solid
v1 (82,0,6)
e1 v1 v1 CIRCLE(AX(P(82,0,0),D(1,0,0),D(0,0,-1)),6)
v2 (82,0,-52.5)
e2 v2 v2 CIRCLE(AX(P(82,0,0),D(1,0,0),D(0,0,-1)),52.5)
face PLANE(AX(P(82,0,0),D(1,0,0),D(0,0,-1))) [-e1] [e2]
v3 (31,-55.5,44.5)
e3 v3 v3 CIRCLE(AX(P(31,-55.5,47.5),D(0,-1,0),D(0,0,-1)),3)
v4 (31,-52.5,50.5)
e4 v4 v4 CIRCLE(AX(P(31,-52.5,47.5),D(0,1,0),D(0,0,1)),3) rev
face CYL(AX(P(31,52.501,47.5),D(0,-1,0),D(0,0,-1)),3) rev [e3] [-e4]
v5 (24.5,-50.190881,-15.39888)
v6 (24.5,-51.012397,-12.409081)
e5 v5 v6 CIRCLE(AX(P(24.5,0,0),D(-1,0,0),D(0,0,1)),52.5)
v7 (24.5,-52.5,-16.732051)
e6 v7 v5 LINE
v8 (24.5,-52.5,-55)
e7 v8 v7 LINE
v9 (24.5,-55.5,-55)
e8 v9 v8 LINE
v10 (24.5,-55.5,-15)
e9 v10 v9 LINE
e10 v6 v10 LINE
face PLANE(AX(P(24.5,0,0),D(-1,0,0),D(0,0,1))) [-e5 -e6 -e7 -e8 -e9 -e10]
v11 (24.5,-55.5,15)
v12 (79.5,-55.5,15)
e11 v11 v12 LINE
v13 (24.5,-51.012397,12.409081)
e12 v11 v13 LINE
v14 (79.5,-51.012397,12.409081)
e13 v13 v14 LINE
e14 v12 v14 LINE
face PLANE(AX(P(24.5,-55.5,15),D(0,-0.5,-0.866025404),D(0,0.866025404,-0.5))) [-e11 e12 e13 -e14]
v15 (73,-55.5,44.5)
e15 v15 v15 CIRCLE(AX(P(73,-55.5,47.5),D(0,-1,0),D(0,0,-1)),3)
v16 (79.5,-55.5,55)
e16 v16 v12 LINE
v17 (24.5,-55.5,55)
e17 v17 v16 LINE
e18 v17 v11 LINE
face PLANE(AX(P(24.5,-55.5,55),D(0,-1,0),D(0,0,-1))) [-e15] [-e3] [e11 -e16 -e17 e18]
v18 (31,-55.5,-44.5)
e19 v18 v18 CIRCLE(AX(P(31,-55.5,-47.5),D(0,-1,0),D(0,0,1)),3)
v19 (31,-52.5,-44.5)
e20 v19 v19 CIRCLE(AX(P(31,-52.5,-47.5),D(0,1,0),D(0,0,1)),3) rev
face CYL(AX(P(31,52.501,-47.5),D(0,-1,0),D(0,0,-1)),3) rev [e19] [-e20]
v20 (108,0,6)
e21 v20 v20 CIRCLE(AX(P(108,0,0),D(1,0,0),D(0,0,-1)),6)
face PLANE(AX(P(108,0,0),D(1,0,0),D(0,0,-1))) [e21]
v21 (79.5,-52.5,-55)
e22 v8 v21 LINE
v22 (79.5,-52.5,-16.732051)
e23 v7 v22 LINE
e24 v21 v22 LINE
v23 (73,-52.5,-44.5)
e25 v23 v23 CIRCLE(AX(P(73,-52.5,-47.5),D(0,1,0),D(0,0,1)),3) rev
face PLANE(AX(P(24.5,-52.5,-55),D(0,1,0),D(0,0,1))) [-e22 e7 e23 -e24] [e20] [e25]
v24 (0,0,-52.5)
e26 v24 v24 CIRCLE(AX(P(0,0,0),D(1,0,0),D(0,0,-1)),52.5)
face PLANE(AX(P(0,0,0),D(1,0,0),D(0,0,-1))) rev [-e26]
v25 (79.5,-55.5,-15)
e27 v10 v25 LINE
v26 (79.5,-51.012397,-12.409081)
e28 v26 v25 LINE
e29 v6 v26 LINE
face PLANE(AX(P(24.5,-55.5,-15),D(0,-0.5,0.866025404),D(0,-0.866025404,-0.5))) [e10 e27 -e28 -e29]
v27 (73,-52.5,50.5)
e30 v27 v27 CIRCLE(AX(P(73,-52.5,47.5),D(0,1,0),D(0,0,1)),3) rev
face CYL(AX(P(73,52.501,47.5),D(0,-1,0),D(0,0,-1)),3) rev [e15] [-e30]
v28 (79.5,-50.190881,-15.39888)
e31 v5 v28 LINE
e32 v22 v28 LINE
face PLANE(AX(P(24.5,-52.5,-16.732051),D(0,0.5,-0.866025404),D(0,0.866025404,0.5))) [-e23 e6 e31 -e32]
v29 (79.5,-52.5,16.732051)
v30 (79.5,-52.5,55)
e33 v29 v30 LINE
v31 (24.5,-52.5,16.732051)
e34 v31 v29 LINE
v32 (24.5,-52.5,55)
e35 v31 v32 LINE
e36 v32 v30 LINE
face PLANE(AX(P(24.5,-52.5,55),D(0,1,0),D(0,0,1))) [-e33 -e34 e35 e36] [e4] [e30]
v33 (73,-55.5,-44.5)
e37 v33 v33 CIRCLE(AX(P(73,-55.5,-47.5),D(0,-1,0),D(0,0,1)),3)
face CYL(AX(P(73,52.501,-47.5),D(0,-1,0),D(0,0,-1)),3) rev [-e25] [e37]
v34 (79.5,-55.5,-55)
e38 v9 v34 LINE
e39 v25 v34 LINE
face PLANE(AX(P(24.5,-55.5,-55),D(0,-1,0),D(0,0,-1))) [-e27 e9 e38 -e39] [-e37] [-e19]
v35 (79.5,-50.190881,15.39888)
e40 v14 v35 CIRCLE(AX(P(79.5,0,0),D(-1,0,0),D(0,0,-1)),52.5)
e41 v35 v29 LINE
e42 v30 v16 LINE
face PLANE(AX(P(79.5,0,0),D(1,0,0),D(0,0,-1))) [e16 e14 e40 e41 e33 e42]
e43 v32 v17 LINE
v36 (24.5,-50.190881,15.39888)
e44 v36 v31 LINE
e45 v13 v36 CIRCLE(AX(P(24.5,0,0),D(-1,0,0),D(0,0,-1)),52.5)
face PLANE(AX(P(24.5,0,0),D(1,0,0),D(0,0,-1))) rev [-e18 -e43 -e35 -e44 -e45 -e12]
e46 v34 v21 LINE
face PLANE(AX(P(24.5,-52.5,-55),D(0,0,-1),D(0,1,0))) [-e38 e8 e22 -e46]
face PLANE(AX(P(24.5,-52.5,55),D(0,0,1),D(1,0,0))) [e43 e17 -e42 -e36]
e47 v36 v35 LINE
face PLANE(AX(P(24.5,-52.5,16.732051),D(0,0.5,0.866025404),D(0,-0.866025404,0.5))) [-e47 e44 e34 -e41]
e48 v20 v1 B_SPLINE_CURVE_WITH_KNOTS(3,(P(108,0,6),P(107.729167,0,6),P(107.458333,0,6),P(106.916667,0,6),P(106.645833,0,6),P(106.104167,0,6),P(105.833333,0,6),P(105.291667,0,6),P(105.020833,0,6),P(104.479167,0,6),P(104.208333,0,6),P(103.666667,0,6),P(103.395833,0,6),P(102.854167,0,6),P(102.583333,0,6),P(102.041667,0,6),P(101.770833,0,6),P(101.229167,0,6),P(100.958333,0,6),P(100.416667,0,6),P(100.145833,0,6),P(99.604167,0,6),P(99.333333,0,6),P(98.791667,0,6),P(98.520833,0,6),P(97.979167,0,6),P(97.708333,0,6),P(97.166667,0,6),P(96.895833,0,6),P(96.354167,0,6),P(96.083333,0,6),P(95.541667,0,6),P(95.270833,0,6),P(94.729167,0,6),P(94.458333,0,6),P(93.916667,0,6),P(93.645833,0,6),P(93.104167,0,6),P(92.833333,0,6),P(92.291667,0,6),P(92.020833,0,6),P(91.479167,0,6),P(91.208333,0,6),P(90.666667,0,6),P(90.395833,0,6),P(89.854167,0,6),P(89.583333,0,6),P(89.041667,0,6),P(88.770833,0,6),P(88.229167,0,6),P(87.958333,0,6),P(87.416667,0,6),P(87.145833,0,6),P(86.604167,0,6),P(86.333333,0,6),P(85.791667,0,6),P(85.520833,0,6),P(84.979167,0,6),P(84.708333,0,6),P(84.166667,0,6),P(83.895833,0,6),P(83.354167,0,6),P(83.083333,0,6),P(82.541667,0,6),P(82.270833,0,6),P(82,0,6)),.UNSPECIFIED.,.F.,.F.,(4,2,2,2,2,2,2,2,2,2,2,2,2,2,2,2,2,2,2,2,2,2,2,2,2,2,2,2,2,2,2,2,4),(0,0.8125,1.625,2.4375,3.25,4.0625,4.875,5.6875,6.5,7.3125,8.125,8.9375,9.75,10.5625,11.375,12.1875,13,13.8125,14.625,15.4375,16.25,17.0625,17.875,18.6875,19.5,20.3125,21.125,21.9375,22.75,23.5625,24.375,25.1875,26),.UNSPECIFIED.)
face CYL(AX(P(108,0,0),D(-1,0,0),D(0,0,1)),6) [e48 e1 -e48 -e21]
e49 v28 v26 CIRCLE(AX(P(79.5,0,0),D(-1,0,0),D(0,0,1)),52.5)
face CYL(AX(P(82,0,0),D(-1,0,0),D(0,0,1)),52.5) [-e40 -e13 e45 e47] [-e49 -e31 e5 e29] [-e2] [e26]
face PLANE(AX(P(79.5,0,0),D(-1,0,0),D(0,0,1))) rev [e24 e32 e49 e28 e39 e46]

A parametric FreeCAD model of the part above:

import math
import FreeCAD as App
import Part
import Sketcher
from FreeCAD import Vector
Q = App.Units.Quantity

doc = App.newDocument("Part")
body = doc.addObject("PartDesign::Body", "Body")

# Sketch on YZ plane
sketch1 = body.newObject("Sketcher::SketchObject", "Sketch")
sketch1.AttachmentSupport = (doc.getObject("YZ_Plane"), [""])
sketch1.MapMode = "FlatFace"
sketch1.addGeometry(Part.Circle(Vector(0, 0, 0), Vector(0, 0, 1), 52), False)
sketch1.addConstraint(Sketcher.Constraint("Coincident", 0, 3, -1, 1))
sketch1.addConstraint(Sketcher.Constraint("Diameter", 0, 105.0))
pad1 = body.newObject("PartDesign::Pad", "Pad")
pad1.Profile = sketch1
pad1.Length = 82

# Sketch on YZ plane
sketch2 = body.newObject("Sketcher::SketchObject", "Sketch001")
sketch2.AttachmentSupport = (doc.getObject("YZ_Plane"), [""])
sketch2.MapMode = "FlatFace"
sketch2.AttachmentOffset = App.Placement(Vector(0, 0, 82), App.Rotation())
sketch2.addGeometry(Part.Circle(Vector(0, 0, 0), Vector(0, 0, 1), 6), False)
sketch2.addConstraint(Sketcher.Constraint("Coincident", 0, 3, -1, 1))
sketch2.addConstraint(Sketcher.Constraint("Diameter", 0, 12.0))
pad2 = body.newObject("PartDesign::Pad", "Pad001")
pad2.Profile = sketch2
pad2.Length = 26

# Sketch on YZ plane
sketch3 = body.newObject("Sketcher::SketchObject", "Sketch002")
sketch3.AttachmentSupport = (doc.getObject("YZ_Plane"), [""])
sketch3.MapMode = "FlatFace"
sketch3.AttachmentOffset = App.Placement(Vector(0, 0, 24.5), App.Rotation())
sketch3.addGeometry(Part.LineSegment(Vector(-52.5, 16.7, 0), Vector(-52.5, 55, 0)), False)
sketch3.addGeometry(Part.LineSegment(Vector(-52.5, 55, 0), Vector(-55.5, 55, 0)), False)
sketch3.addGeometry(Part.LineSegment(Vector(-55.5, 55, 0), Vector(-55.5, 15, 0)), False)
sketch3.addGeometry(Part.LineSegment(Vector(-55.5, 15, 0), Vector(-51, 12.4, 0)), False)
sketch3.addGeometry(Part.ArcOfCircle(Part.Circle(Vector(0, 0, 0), Vector(0, 0, 1), 52.5), math.radians(162.94), math.radians(166.33)), False)
sketch3.addGeometry(Part.LineSegment(Vector(-50.2, 15.4, 0), Vector(-52.5, 16.7, 0)), False)
sketch3.addGeometry(Part.LineSegment(Vector(-52.5, -16.7, 0), Vector(-50.2, -15.4, 0)), False)
sketch3.addGeometry(Part.ArcOfCircle(Part.Circle(Vector(0, 0, 0), Vector(0, 0, 1), 52.5), math.radians(-166.33), math.radians(-162.94)), False)
sketch3.addGeometry(Part.LineSegment(Vector(-51, -12.4, 0), Vector(-55.5, -15, 0)), False)
sketch3.addGeometry(Part.LineSegment(Vector(-55.5, -15, 0), Vector(-55.5, -55, 0)), False)
sketch3.addGeometry(Part.LineSegment(Vector(-55.5, -55, 0), Vector(-52.5, -55, 0)), False)
sketch3.addGeometry(Part.LineSegment(Vector(-52.5, -55, 0), Vector(-52.5, -16.7, 0)), False)
sketch3.addConstraint(Sketcher.Constraint("Coincident", 0, 2, 1, 1))
sketch3.addConstraint(Sketcher.Constraint("Coincident", 1, 2, 2, 1))
sketch3.addConstraint(Sketcher.Constraint("Coincident", 2, 2, 3, 1))
sketch3.addConstraint(Sketcher.Constraint("Coincident", 3, 2, 4, 2))
sketch3.addConstraint(Sketcher.Constraint("Coincident", 4, 1, 5, 1))
sketch3.addConstraint(Sketcher.Constraint("Coincident", 5, 2, 0, 1))
sketch3.addConstraint(Sketcher.Constraint("Coincident", 6, 2, 7, 2))
sketch3.addConstraint(Sketcher.Constraint("Coincident", 7, 1, 8, 1))
sketch3.addConstraint(Sketcher.Constraint("Coincident", 8, 2, 9, 1))
sketch3.addConstraint(Sketcher.Constraint("Coincident", 9, 2, 10, 1))
sketch3.addConstraint(Sketcher.Constraint("Coincident", 10, 2, 11, 1))
sketch3.addConstraint(Sketcher.Constraint("Coincident", 11, 2, 6, 1))
sketch3.addConstraint(Sketcher.Constraint("Vertical", 0))
sketch3.addConstraint(Sketcher.Constraint("Horizontal", 1))
sketch3.addConstraint(Sketcher.Constraint("Vertical", 2))
sketch3.addConstraint(Sketcher.Constraint("Vertical", 9))
sketch3.addConstraint(Sketcher.Constraint("Horizontal", 10))
sketch3.addConstraint(Sketcher.Constraint("Vertical", 11))
sketch3.addConstraint(Sketcher.Constraint("Coincident", 4, 3, -1, 1))
sketch3.addConstraint(Sketcher.Constraint("Coincident", 7, 3, -1, 1))
sketch3.addConstraint(Sketcher.Constraint("Equal", 4, 7))
sketch3.addConstraint(Sketcher.Constraint("Symmetric", 2, 2, 8, 2, -1))
sketch3.addConstraint(Sketcher.Constraint("Symmetric", 0, 2, 10, 2, -1))
sketch3.addConstraint(Sketcher.Constraint("Parallel", 3, 5))
sketch3.addConstraint(Sketcher.Constraint("Parallel", 6, 8))
sketch3.addConstraint(Sketcher.Constraint("Vertical", 4, 1, 6, 2))
sketch3.addConstraint(Sketcher.Constraint("Vertical", 3, 2, 7, 1))
sketch3.addConstraint(Sketcher.Constraint("Radius", 4, 52.5))
sketch3.addConstraint(Sketcher.Constraint("DistanceX", 1, 2, 1, 1, 3.0))
sketch3.addConstraint(Sketcher.Constraint("DistanceY", 2, 2, 2, 1, 40.0))
sketch3.addConstraint(Sketcher.Constraint("Angle", 3, Q("-30 deg")))
sketch3.addConstraint(Sketcher.Constraint("DistanceY", -1, 1, 0, 2, 55.0))
sketch3.addConstraint(Sketcher.Constraint("DistanceX", 0, 2, -1, 1, 52.5))
sketch3.addConstraint(Sketcher.Constraint("DistanceY", 0, 1, 0, 2, 38.267949))
pad3 = body.newObject("PartDesign::Pad", "Pad002")
pad3.Profile = sketch3
pad3.Length = 55

# Sketch on XZ plane
sketch4 = body.newObject("Sketcher::SketchObject", "Sketch003")
sketch4.AttachmentSupport = (doc.getObject("XZ_Plane"), [""])
sketch4.MapMode = "FlatFace"
sketch4.AttachmentOffset = App.Placement(Vector(0, 0, 55.5), App.Rotation())
sketch4.addGeometry(Part.Circle(Vector(73, 47.5, 0), Vector(0, 0, 1), 3), False)
sketch4.addConstraint(Sketcher.Constraint("Diameter", 0, 6.0))
sketch4.addConstraint(Sketcher.Constraint("DistanceX", -1, 1, 0, 3, 73.0))
sketch4.addConstraint(Sketcher.Constraint("DistanceY", -1, 1, 0, 3, 47.5))
pocket1 = body.newObject("PartDesign::Pocket", "Pocket")
pocket1.Profile = sketch4
pocket1.Type = "UpToFirst"

# Sketch on XZ plane
sketch5 = body.newObject("Sketcher::SketchObject", "Sketch004")
sketch5.AttachmentSupport = (doc.getObject("XZ_Plane"), [""])
sketch5.MapMode = "FlatFace"
sketch5.AttachmentOffset = App.Placement(Vector(0, 0, 55.5), App.Rotation())
sketch5.addGeometry(Part.Circle(Vector(73, -47.5, 0), Vector(0, 0, 1), 3), False)
sketch5.addConstraint(Sketcher.Constraint("Diameter", 0, 6.0))
sketch5.addConstraint(Sketcher.Constraint("DistanceX", -1, 1, 0, 3, 73.0))
sketch5.addConstraint(Sketcher.Constraint("DistanceY", 0, 3, -1, 1, 47.5))
pocket2 = body.newObject("PartDesign::Pocket", "Pocket001")
pocket2.Profile = sketch5
pocket2.Type = "UpToFirst"

# Sketch on XZ plane
sketch6 = body.newObject("Sketcher::SketchObject", "Sketch005")
sketch6.AttachmentSupport = (doc.getObject("XZ_Plane"), [""])
sketch6.MapMode = "FlatFace"
sketch6.AttachmentOffset = App.Placement(Vector(0, 0, 55.5), App.Rotation())
sketch6.addGeometry(Part.Circle(Vector(31, -47.5, 0), Vector(0, 0, 1), 3), False)
sketch6.addConstraint(Sketcher.Constraint("Diameter", 0, 6.0))
sketch6.addConstraint(Sketcher.Constraint("DistanceX", -1, 1, 0, 3, 31.0))
sketch6.addConstraint(Sketcher.Constraint("DistanceY", 0, 3, -1, 1, 47.5))
pocket3 = body.newObject("PartDesign::Pocket", "Pocket002")
pocket3.Profile = sketch6
pocket3.Type = "UpToFirst"

# Sketch on XZ plane
sketch7 = body.newObject("Sketcher::SketchObject", "Sketch006")
sketch7.AttachmentSupport = (doc.getObject("XZ_Plane"), [""])
sketch7.MapMode = "FlatFace"
sketch7.AttachmentOffset = App.Placement(Vector(0, 0, 55.5), App.Rotation())
sketch7.addGeometry(Part.Circle(Vector(31, 47.5, 0), Vector(0, 0, 1), 3), False)
sketch7.addConstraint(Sketcher.Constraint("Diameter", 0, 6.0))
sketch7.addConstraint(Sketcher.Constraint("DistanceX", -1, 1, 0, 3, 31.0))
sketch7.addConstraint(Sketcher.Constraint("DistanceY", -1, 1, 0, 3, 47.5))
pocket4 = body.newObject("PartDesign::Pocket", "Pocket003")
pocket4.Profile = sketch7
pocket4.Type = "UpToFirst"

doc.recompute()
